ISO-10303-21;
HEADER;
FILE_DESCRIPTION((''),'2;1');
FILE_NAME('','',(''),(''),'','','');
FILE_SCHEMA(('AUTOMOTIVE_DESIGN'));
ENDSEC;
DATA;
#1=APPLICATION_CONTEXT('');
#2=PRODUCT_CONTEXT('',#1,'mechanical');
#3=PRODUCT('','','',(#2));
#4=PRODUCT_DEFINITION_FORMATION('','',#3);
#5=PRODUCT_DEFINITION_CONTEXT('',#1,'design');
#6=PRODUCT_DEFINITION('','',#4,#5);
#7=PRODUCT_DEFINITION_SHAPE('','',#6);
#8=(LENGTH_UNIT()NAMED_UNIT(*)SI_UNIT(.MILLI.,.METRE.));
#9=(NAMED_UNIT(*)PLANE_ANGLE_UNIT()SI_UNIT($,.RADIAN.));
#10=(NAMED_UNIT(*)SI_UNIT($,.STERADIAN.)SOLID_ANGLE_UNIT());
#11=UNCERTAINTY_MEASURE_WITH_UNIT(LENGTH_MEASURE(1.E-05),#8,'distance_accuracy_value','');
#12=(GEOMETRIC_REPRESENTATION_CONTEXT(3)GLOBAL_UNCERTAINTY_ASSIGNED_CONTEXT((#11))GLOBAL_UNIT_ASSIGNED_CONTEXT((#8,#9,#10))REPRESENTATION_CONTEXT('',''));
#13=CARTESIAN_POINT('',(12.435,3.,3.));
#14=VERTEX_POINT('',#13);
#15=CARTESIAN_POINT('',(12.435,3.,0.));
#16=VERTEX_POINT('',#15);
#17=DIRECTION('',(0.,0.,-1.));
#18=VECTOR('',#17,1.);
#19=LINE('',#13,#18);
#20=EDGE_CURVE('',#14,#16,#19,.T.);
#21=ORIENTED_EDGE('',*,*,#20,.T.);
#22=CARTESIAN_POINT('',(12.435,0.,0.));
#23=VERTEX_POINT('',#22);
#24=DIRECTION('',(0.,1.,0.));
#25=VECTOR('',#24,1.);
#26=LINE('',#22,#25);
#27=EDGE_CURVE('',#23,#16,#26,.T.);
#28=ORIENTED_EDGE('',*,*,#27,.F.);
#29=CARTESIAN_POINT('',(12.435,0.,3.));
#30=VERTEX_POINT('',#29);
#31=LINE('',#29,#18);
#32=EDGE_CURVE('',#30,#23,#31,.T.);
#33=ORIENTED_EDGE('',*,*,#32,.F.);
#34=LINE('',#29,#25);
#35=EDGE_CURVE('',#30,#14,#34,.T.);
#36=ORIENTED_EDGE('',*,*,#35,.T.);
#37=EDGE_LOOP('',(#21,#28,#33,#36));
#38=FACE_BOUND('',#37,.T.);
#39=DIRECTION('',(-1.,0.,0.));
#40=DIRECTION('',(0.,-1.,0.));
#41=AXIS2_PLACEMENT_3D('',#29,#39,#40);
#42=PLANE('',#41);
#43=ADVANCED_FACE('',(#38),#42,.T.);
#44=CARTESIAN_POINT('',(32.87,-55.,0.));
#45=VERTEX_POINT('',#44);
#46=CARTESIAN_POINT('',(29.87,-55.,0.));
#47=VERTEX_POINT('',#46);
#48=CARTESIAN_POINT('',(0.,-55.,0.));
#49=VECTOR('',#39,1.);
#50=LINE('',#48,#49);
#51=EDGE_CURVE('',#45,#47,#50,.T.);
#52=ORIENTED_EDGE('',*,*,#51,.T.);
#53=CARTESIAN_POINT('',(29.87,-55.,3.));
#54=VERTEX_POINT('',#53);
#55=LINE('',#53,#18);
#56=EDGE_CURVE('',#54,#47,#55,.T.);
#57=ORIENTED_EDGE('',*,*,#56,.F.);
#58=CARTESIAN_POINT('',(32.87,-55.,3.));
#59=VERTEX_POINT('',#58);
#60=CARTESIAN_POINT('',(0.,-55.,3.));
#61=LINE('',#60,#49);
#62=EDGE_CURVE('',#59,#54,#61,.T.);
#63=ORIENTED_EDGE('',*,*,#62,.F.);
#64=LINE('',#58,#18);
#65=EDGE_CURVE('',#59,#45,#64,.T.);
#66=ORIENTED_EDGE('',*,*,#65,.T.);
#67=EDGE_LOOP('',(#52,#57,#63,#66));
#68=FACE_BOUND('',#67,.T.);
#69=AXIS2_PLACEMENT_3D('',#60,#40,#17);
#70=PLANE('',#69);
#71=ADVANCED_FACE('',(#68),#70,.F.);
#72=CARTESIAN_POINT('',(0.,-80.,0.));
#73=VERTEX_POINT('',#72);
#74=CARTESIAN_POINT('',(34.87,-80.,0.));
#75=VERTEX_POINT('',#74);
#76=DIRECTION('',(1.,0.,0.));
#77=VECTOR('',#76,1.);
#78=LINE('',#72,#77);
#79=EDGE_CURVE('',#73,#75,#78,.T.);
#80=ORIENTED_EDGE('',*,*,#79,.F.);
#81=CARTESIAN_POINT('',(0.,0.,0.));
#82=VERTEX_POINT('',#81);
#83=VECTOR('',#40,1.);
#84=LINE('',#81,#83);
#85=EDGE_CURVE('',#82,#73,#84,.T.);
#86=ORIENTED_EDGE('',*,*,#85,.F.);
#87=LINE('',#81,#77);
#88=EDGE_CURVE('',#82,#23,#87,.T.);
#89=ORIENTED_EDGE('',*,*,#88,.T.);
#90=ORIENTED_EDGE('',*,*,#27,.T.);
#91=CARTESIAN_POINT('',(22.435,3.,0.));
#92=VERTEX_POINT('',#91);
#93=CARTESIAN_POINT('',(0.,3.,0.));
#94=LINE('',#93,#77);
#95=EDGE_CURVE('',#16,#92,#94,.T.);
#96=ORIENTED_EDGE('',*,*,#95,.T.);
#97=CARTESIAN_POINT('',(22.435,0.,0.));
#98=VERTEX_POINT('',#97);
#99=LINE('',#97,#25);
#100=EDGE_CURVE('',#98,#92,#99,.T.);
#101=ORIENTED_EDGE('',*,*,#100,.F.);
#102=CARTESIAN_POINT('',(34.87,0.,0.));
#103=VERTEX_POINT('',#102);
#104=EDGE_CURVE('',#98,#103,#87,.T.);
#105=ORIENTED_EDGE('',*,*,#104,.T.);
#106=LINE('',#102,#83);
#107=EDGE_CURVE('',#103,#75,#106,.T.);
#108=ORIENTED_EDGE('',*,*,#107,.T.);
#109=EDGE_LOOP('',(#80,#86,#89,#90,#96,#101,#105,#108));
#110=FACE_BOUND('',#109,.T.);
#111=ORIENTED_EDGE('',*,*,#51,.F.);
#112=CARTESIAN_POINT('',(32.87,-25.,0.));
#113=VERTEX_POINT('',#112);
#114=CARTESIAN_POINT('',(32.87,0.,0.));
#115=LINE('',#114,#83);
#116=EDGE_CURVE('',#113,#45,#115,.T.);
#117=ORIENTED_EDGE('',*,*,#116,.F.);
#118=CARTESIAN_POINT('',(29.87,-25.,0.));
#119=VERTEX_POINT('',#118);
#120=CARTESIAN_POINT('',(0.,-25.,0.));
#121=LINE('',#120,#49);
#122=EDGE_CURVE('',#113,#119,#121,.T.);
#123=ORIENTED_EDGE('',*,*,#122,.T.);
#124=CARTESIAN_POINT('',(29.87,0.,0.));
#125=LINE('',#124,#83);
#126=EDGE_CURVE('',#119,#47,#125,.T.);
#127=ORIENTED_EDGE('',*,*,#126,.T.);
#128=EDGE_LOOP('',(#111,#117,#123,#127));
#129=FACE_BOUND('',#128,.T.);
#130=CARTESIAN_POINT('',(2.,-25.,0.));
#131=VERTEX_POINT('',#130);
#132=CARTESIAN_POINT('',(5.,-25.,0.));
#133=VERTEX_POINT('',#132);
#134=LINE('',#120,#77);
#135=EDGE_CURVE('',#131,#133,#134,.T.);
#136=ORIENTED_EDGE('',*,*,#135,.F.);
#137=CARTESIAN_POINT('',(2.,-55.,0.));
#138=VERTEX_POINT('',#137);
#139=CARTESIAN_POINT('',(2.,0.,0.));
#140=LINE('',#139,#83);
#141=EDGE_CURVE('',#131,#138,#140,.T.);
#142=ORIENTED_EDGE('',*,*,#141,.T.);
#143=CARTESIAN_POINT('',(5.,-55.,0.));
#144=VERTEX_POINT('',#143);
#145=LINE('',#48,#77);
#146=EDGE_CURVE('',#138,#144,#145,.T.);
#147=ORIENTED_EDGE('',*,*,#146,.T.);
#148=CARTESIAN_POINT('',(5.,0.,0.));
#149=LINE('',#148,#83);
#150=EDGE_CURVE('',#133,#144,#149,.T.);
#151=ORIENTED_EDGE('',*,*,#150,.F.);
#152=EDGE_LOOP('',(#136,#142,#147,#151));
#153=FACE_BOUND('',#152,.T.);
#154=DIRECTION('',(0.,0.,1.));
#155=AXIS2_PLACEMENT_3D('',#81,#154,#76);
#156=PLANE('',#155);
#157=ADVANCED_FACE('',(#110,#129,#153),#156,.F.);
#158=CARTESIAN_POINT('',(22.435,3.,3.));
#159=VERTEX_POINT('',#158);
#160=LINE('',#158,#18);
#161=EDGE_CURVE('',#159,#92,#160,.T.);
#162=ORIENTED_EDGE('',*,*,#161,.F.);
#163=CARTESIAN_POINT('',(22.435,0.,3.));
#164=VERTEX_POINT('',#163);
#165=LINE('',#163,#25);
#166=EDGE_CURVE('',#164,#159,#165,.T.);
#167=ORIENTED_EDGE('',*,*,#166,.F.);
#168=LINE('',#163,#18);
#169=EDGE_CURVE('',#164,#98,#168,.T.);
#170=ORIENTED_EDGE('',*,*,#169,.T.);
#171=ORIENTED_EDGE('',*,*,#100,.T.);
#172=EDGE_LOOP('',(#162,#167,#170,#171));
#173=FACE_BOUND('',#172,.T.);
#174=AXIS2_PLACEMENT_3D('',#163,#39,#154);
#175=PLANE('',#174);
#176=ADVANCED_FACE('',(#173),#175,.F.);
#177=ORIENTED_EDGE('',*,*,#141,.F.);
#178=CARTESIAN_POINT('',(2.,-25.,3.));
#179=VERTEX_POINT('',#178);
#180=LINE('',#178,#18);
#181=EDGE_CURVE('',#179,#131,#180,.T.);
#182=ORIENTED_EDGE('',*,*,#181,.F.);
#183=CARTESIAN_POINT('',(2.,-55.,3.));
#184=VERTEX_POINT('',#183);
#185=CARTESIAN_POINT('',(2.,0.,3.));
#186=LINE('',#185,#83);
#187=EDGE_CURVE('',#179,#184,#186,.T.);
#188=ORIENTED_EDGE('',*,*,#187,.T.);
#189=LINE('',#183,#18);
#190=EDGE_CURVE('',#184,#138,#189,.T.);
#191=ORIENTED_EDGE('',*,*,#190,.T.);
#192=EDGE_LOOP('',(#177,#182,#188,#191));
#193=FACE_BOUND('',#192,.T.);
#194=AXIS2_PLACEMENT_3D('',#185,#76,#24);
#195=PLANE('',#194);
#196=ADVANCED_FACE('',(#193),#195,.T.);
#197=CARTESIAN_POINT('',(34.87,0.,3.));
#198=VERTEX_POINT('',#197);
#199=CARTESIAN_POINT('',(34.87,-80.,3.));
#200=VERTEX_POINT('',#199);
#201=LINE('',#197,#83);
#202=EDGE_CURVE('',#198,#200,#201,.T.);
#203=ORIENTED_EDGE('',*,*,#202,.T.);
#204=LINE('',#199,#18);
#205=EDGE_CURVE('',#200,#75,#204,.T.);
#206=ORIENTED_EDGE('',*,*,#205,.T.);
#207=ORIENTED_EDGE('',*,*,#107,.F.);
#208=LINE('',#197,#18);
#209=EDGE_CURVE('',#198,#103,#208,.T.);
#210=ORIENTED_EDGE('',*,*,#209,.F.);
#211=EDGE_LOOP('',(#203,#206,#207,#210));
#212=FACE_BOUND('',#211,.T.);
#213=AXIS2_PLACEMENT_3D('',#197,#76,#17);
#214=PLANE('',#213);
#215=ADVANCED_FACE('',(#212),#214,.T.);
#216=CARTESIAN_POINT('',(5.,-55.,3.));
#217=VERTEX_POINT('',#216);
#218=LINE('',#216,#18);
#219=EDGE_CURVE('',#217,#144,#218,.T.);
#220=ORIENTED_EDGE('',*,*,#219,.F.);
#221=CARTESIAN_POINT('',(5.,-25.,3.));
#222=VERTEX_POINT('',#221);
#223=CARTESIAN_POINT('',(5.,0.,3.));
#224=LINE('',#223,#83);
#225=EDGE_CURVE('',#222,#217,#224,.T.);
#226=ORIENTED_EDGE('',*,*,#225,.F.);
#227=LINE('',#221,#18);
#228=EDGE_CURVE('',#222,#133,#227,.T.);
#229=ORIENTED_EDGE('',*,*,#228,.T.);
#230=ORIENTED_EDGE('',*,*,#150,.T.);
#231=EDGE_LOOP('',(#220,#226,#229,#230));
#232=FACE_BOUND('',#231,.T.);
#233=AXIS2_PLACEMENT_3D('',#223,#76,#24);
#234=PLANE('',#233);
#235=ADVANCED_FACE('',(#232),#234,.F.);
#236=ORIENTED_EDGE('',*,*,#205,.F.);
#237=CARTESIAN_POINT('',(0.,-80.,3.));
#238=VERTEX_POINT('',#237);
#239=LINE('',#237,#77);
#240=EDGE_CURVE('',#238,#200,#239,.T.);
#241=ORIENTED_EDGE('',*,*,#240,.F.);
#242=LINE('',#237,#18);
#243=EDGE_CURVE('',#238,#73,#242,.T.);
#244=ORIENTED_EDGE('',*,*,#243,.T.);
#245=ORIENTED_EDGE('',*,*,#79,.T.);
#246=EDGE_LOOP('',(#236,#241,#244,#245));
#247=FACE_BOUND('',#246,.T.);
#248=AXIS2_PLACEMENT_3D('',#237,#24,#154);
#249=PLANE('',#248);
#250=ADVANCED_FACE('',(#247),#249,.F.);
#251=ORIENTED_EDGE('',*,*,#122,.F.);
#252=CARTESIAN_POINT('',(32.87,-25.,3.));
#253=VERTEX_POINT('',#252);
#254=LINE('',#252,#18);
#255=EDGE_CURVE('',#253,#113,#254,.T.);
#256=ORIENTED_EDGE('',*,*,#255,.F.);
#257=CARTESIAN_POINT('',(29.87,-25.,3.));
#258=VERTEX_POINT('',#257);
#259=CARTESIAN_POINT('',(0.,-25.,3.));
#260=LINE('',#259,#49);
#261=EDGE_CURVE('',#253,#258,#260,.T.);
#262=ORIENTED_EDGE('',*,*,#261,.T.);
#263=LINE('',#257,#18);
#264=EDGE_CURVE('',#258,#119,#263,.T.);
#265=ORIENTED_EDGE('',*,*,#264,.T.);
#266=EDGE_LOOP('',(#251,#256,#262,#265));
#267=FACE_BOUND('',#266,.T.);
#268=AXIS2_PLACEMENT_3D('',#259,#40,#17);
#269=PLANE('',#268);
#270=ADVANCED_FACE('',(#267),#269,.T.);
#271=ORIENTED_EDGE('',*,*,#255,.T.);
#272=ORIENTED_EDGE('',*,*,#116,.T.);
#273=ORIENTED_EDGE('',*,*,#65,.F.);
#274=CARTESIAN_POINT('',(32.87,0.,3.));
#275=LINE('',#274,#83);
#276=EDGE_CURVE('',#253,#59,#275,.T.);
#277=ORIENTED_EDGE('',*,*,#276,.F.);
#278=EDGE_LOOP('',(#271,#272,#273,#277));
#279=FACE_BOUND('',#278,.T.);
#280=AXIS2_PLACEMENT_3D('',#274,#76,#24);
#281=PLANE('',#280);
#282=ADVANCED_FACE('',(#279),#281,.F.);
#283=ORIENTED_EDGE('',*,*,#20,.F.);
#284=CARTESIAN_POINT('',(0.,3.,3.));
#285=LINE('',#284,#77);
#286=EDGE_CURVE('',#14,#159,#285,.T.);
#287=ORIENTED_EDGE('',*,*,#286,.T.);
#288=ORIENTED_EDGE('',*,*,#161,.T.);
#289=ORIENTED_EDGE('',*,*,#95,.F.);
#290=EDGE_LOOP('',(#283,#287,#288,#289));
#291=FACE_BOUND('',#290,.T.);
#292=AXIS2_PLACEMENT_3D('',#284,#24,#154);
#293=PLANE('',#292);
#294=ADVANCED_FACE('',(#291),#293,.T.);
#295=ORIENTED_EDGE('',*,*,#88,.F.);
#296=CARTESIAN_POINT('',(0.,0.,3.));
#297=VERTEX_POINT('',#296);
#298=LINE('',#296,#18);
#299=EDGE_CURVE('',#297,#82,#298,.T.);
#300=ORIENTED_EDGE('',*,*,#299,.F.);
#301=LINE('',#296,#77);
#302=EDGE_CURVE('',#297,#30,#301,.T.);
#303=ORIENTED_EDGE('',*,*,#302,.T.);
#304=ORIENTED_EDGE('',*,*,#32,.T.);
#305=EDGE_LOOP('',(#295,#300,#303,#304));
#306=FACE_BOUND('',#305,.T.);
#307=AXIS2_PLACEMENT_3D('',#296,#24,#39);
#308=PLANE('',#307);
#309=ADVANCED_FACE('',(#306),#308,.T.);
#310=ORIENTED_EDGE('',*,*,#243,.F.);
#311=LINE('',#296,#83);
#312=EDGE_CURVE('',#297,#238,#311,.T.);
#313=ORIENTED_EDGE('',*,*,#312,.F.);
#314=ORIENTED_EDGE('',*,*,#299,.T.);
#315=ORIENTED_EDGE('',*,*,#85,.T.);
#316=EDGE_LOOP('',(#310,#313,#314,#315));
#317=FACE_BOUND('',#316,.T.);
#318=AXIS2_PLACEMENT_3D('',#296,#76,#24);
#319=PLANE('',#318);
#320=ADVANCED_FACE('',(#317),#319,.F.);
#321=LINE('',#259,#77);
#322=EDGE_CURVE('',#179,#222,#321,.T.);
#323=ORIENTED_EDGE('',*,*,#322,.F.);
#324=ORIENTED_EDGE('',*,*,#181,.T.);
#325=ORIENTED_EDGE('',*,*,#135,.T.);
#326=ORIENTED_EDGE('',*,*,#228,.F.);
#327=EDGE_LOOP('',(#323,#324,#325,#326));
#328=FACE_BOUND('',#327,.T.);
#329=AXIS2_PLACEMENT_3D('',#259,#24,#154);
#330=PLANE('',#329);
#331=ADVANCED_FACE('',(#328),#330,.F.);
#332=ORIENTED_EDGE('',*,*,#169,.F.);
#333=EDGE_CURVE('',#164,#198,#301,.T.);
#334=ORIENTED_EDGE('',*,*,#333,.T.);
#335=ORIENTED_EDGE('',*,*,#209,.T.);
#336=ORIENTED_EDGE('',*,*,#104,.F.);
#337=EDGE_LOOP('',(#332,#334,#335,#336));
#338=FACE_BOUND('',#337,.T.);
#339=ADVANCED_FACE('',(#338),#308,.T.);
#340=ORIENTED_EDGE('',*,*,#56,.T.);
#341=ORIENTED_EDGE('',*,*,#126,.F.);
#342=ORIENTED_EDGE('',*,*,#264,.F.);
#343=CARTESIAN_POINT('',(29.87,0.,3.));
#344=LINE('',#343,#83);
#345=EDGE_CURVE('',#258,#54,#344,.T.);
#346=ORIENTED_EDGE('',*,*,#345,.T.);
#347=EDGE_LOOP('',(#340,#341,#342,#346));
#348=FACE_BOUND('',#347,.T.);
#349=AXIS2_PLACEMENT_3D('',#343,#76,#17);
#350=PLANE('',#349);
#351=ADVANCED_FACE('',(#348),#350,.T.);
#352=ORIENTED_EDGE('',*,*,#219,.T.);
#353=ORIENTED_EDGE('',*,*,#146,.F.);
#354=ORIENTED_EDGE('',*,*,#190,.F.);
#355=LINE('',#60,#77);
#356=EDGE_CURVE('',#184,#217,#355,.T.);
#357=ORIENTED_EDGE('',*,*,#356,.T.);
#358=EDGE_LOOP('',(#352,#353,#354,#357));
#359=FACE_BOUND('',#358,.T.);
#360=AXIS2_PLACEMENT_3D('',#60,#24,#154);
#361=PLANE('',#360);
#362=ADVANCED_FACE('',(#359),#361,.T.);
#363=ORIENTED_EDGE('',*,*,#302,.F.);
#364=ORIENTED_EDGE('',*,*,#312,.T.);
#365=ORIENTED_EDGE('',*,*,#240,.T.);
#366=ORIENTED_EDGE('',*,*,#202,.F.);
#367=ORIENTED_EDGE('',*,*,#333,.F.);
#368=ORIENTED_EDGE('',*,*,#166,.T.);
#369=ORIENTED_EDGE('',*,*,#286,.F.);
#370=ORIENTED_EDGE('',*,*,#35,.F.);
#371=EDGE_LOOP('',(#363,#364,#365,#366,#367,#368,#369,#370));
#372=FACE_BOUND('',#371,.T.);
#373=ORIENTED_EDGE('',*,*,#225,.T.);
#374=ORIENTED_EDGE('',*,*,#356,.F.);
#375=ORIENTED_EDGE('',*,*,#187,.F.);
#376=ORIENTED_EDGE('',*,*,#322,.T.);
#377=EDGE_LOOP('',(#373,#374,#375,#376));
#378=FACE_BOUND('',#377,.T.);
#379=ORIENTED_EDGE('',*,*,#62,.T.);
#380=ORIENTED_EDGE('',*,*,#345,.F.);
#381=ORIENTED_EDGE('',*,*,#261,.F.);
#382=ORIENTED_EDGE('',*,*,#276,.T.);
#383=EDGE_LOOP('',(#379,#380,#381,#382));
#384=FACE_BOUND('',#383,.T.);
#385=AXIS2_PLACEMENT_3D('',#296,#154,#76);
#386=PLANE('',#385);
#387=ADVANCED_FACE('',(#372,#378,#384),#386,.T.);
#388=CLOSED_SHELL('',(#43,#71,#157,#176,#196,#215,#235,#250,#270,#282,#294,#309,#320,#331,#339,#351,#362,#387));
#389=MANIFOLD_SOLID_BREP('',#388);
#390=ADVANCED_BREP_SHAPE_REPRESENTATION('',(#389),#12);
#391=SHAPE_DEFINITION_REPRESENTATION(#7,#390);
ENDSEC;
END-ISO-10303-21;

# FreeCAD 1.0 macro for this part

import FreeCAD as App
import Part
import Sketcher

V = App.Vector
Q = App.Units.Quantity


def add_polygon(sketch, points):
    """Adds a closed chain of lines whose ends are joined by coincident constraints."""
    first, n = sketch.GeometryCount, len(points)
    for a, b in zip(points, points[1:] + points[:1]):
        sketch.addGeometry(Part.LineSegment(App.Vector(*a, 0), App.Vector(*b, 0)), False)
    for i in range(n):
        sketch.addConstraint(Sketcher.Constraint("Coincident", first + i, 2, first + (i + 1) % n, 1))

doc = App.newDocument("Part")
body = doc.addObject("PartDesign::Body", "Body")

# Sketch on XY plane
sketch1 = body.newObject("Sketcher::SketchObject", "Sketch")
sketch1.AttachmentSupport = (doc.getObject("XY_Plane"), [""])
sketch1.MapMode = "FlatFace"
add_polygon(sketch1, [(0, 0), (0, -80), (34.9, -80), (34.9, 0), (22.4, 0), (22.4, 3), (12.4, 3), (12.4, 0)])  # lines 0-7
add_polygon(sketch1, [(32.9, -55), (29.9, -55), (29.9, -25), (32.9, -25)])  # lines 8-11
add_polygon(sketch1, [(2, -25), (5, -25), (5, -55), (2, -55)])  # lines 12-15
sketch1.addConstraint([
    Sketcher.Constraint("Vertical", 0),
    Sketcher.Constraint("Horizontal", 1),
    Sketcher.Constraint("Vertical", 2),
    Sketcher.Constraint("Horizontal", 3),
    Sketcher.Constraint("Vertical", 4),
    Sketcher.Constraint("Horizontal", 5),
    Sketcher.Constraint("Vertical", 6),
    Sketcher.Constraint("Horizontal", 7),
    Sketcher.Constraint("Horizontal", 8),
    Sketcher.Constraint("Vertical", 9),
    Sketcher.Constraint("Horizontal", 10),
    Sketcher.Constraint("Vertical", 11),
    Sketcher.Constraint("Horizontal", 12),
    Sketcher.Constraint("Vertical", 13),
    Sketcher.Constraint("Horizontal", 14),
    Sketcher.Constraint("Vertical", 15),
    Sketcher.Constraint("Coincident", 7, 2, -1, 1),
    Sketcher.Constraint("PointOnObject", 2, 2, -1),
    Sketcher.Constraint("Horizontal", 10, 2, 12, 2),
    Sketcher.Constraint("Horizontal", 11, 2, 13, 2),
    Sketcher.Constraint("Equal", 3, 7),
    Sketcher.Constraint("Equal", 10, 12),
    Sketcher.Constraint("Equal", 14, 4),
    Sketcher.Constraint("DistanceX", 5, 2, 5, 1, Q("10 mm")),
    Sketcher.Constraint("DistanceX", 8, 2, 8, 1, Q("3 mm")),
    Sketcher.Constraint("DistanceY", 0, 2, 0, 1, Q("80 mm")),
    Sketcher.Constraint("DistanceY", 9, 1, 9, 2, Q("30 mm")),
    Sketcher.Constraint("DistanceY", 8, 2, -1, 1, Q("55 mm")),
    Sketcher.Constraint("DistanceX", -1, 1, 12, 2, Q("5 mm")),
    Sketcher.Constraint("DistanceX", 8, 2, 1, 2, Q("5 mm")),
    Sketcher.Constraint("DistanceX", 1, 1, 1, 2, Q("34.87 mm")),
])
pad1 = body.newObject("PartDesign::Pad", "Pad")
pad1.Profile = sketch1
pad1.Length = 3

doc.recompute()
